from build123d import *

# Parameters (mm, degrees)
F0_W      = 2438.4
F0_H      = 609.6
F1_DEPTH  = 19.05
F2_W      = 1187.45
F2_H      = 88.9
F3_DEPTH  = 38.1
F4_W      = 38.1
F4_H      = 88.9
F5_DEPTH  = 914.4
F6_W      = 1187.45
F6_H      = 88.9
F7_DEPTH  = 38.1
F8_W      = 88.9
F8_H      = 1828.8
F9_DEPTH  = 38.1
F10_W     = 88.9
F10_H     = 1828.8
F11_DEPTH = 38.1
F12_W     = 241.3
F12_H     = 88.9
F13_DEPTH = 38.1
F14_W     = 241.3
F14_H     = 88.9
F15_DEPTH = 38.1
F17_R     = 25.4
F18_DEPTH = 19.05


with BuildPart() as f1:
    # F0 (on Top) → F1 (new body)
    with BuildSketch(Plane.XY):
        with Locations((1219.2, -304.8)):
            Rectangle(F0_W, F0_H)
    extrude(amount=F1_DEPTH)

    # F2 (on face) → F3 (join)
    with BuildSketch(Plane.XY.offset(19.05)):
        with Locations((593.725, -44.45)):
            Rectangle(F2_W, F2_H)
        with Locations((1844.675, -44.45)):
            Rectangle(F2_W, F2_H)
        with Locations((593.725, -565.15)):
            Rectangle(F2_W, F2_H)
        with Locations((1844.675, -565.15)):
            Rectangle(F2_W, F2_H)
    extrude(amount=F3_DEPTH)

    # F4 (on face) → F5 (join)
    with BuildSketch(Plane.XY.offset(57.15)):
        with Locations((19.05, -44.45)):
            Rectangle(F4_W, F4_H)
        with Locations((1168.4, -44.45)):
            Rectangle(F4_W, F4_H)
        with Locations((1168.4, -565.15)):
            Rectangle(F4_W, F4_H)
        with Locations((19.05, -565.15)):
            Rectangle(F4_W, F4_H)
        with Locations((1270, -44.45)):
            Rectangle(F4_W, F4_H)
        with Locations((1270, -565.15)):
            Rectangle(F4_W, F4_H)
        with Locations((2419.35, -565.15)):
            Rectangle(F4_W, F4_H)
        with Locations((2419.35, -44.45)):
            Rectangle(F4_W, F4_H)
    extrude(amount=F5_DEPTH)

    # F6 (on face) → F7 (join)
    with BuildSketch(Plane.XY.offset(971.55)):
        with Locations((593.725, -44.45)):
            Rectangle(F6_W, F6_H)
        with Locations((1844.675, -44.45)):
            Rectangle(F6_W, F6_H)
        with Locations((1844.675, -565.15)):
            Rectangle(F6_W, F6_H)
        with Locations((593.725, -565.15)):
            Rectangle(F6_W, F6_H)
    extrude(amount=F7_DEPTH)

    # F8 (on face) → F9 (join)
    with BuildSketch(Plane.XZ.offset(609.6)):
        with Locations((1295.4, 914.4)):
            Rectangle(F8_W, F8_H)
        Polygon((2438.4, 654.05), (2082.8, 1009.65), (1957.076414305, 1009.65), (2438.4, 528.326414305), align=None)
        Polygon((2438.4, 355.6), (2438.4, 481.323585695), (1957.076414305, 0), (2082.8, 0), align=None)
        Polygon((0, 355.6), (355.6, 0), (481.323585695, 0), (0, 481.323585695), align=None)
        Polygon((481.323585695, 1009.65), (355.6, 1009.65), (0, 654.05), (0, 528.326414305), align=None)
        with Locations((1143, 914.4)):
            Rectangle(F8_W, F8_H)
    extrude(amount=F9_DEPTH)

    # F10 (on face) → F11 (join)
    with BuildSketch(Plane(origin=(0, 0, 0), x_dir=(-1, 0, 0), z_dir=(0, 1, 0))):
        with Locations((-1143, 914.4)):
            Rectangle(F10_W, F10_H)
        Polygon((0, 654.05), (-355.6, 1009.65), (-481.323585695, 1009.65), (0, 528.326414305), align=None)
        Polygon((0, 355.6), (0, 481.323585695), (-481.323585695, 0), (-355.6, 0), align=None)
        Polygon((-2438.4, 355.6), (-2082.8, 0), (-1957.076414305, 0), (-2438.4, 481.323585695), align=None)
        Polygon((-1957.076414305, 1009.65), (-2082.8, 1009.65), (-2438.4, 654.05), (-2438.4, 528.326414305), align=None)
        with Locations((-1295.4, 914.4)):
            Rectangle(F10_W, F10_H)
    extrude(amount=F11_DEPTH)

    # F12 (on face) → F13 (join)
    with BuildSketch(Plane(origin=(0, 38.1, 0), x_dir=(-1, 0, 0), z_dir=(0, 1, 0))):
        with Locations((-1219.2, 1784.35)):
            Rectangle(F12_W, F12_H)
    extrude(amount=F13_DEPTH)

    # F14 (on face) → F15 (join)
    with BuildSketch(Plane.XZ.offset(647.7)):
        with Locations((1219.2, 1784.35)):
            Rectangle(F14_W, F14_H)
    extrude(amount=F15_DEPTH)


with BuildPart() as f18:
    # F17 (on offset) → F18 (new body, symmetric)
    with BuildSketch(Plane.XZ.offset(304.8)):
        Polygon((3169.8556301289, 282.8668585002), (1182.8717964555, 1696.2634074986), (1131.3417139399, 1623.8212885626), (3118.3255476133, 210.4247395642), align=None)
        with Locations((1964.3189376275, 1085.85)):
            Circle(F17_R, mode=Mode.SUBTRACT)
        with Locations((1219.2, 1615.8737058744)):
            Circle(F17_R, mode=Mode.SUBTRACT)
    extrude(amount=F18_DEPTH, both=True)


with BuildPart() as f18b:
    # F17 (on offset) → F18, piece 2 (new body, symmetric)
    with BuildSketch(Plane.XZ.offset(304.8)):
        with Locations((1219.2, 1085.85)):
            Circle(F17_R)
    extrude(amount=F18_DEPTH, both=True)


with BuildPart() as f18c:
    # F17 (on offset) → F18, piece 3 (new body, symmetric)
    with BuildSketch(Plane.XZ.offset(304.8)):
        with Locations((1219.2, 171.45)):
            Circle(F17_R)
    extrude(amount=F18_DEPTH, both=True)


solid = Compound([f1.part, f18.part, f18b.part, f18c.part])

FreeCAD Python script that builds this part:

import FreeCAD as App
import Part
import Sketcher

V = App.Vector
Q = App.Units.Quantity

doc = App.newDocument("Part")
body = doc.addObject("PartDesign::Body", "Body")

# Sketch on XY plane
sketch1 = body.newObject("Sketcher::SketchObject", "Sketch")
sketch1.AttachmentSupport = (doc.getObject("XY_Plane"), [""])
sketch1.MapMode = "FlatFace"
sketch1.addGeometry([
    Part.LineSegment(V(0, 0, 0), V(0, -609.6, 0)),
    Part.LineSegment(V(0, -609.6, 0), V(2438.4, -609.6, 0)),
    Part.LineSegment(V(2438.4, -609.6, 0), V(2438.4, 0, 0)),
    Part.LineSegment(V(2438.4, 0, 0), V(0, 0, 0)),
], False)
sketch1.addConstraint([
    Sketcher.Constraint("Coincident", 0, 2, 1, 1),
    Sketcher.Constraint("Coincident", 1, 2, 2, 1),
    Sketcher.Constraint("Coincident", 2, 2, 3, 1),
    Sketcher.Constraint("Coincident", 3, 2, 0, 1),
    Sketcher.Constraint("Vertical", 0),
    Sketcher.Constraint("Horizontal", 1),
    Sketcher.Constraint("Vertical", 2),
    Sketcher.Constraint("Horizontal", 3),
    Sketcher.Constraint("Coincident", 3, 2, -1, 1),
    Sketcher.Constraint("DistanceX", 1, 1, 1, 2, Q("96 in")),
    Sketcher.Constraint("DistanceY", 0, 2, 0, 1, Q("24 in")),
])
pad1 = body.newObject("PartDesign::Pad", "Pad")
pad1.Profile = sketch1
pad1.Length = Q("0.75 in")

# Sketch on XY plane
sketch2 = body.newObject("Sketcher::SketchObject", "Sketch001")
sketch2.AttachmentSupport = (doc.getObject("XY_Plane"), [""])
sketch2.MapMode = "FlatFace"
sketch2.AttachmentOffset = App.Placement(V(0, 0, 0.75 * 25.4), App.Rotation())
sketch2.addGeometry([
    Part.LineSegment(V(0, 0, 0), V(0, -88.9, 0)),  # 0
    Part.LineSegment(V(0, -88.9, 0), V(1187.45, -88.9, 0)),  # 1
    Part.LineSegment(V(1187.45, -88.9, 0), V(1187.45, 0, 0)),  # 2
    Part.LineSegment(V(1187.45, 0, 0), V(0, 0, 0)),  # 3
    Part.LineSegment(V(1250.95, 0, 0), V(1250.95, -88.9, 0)),  # 4
    Part.LineSegment(V(1250.95, -88.9, 0), V(2438.4, -88.9, 0)),  # 5
    Part.LineSegment(V(2438.4, -88.9, 0), V(2438.4, 0, 0)),  # 6
    Part.LineSegment(V(2438.4, 0, 0), V(1250.95, 0, 0)),  # 7
    Part.LineSegment(V(0, -520.7, 0), V(0, -609.6, 0)),  # 8
    Part.LineSegment(V(0, -609.6, 0), V(1187.45, -609.6, 0)),  # 9
    Part.LineSegment(V(1187.45, -609.6, 0), V(1187.45, -520.7, 0)),  # 10
    Part.LineSegment(V(1187.45, -520.7, 0), V(0, -520.7, 0)),  # 11
    Part.LineSegment(V(1250.95, -520.7, 0), V(1250.95, -609.6, 0)),  # 12
    Part.LineSegment(V(1250.95, -609.6, 0), V(2438.4, -609.6, 0)),  # 13
    Part.LineSegment(V(2438.4, -609.6, 0), V(2438.4, -520.7, 0)),  # 14
    Part.LineSegment(V(2438.4, -520.7, 0), V(1250.95, -520.7, 0)),  # 15
], False)
sketch2.addConstraint([
    Sketcher.Constraint("Coincident", 0, 2, 1, 1),
    Sketcher.Constraint("Coincident", 1, 2, 2, 1),
    Sketcher.Constraint("Coincident", 2, 2, 3, 1),
    Sketcher.Constraint("Coincident", 3, 2, 0, 1),
    Sketcher.Constraint("Coincident", 4, 2, 5, 1),
    Sketcher.Constraint("Coincident", 5, 2, 6, 1),
    Sketcher.Constraint("Coincident", 6, 2, 7, 1),
    Sketcher.Constraint("Coincident", 7, 2, 4, 1),
    Sketcher.Constraint("Coincident", 8, 2, 9, 1),
    Sketcher.Constraint("Coincident", 9, 2, 10, 1),
    Sketcher.Constraint("Coincident", 10, 2, 11, 1),
    Sketcher.Constraint("Coincident", 11, 2, 8, 1),
    Sketcher.Constraint("Coincident", 12, 2, 13, 1),
    Sketcher.Constraint("Coincident", 13, 2, 14, 1),
    Sketcher.Constraint("Coincident", 14, 2, 15, 1),
    Sketcher.Constraint("Coincident", 15, 2, 12, 1),
    Sketcher.Constraint("Vertical", 0),
    Sketcher.Constraint("Horizontal", 1),
    Sketcher.Constraint("Vertical", 2),
    Sketcher.Constraint("Horizontal", 3),
    Sketcher.Constraint("Vertical", 4),
    Sketcher.Constraint("Horizontal", 5),
    Sketcher.Constraint("Vertical", 6),
    Sketcher.Constraint("Horizontal", 7),
    Sketcher.Constraint("Vertical", 8),
    Sketcher.Constraint("Horizontal", 9),
    Sketcher.Constraint("Vertical", 10),
    Sketcher.Constraint("Horizontal", 11),
    Sketcher.Constraint("Vertical", 12),
    Sketcher.Constraint("Horizontal", 13),
    Sketcher.Constraint("Vertical", 14),
    Sketcher.Constraint("Horizontal", 15),
    Sketcher.Constraint("Coincident", 3, 2, -1, 1),
    Sketcher.Constraint("PointOnObject", 6, 2, -1),
    Sketcher.Constraint("PointOnObject", 8, 2, -2),
    Sketcher.Constraint("Horizontal", 1, 2, 4, 2),
    Sketcher.Constraint("Horizontal", 9, 2, 12, 2),
    Sketcher.Constraint("Horizontal", 11, 2, 14, 2),
    Sketcher.Constraint("Vertical", 2, 2, 9, 2),
    Sketcher.Constraint("Vertical", 7, 2, 12, 2),
    Sketcher.Constraint("Vertical", 6, 2, 13, 2),
    Sketcher.Constraint("Equal", 3, 5),
    Sketcher.Constraint("Equal", 6, 8),
    Sketcher.Constraint("DistanceY", 0, 2, 0, 1, Q("3.5 in")),
    Sketcher.Constraint("DistanceX", -1, 1, 5, 2, Q("96 in")),
    Sketcher.Constraint("DistanceY", 8, 2, -1, 1, Q("24 in")),
    Sketcher.Constraint("DistanceX", 1, 1, 1, 2, Q("46.75 in")),
])
pad2 = body.newObject("PartDesign::Pad", "Pad001")
pad2.Profile = sketch2
pad2.Length = Q("1.5 in")

# Sketch on XY plane
sketch3 = body.newObject("Sketcher::SketchObject", "Sketch002")
sketch3.AttachmentSupport = (doc.getObject("XY_Plane"), [""])
sketch3.MapMode = "FlatFace"
sketch3.AttachmentOffset = App.Placement(V(0, 0, 2.25 * 25.4), App.Rotation())
sketch3.addGeometry([
    Part.LineSegment(V(0, 0, 0), V(0, -88.9, 0)),  # 0
    Part.LineSegment(V(0, -88.9, 0), V(38.1, -88.9, 0)),  # 1
    Part.LineSegment(V(38.1, -88.9, 0), V(38.1, 0, 0)),  # 2
    Part.LineSegment(V(38.1, 0, 0), V(0, 0, 0)),  # 3
    Part.LineSegment(V(1149.35, 0, 0), V(1149.35, -88.9, 0)),  # 4
    Part.LineSegment(V(1149.35, -88.9, 0), V(1187.45, -88.9, 0)),  # 5
    Part.LineSegment(V(1187.45, -88.9, 0), V(1187.45, 0, 0)),  # 6
    Part.LineSegment(V(1187.45, 0, 0), V(1149.35, 0, 0)),  # 7
    Part.LineSegment(V(1149.35, -520.7, 0), V(1149.35, -609.6, 0)),  # 8
    Part.LineSegment(V(1149.35, -609.6, 0), V(1187.45, -609.6, 0)),  # 9
    Part.LineSegment(V(1187.45, -609.6, 0), V(1187.45, -520.7, 0)),  # 10
    Part.LineSegment(V(1187.45, -520.7, 0), V(1149.35, -520.7, 0)),  # 11
    Part.LineSegment(V(0, -520.7, 0), V(0, -609.6, 0)),  # 12
    Part.LineSegment(V(0, -609.6, 0), V(38.1, -609.6, 0)),  # 13
    Part.LineSegment(V(38.1, -609.6, 0), V(38.1, -520.7, 0)),  # 14
    Part.LineSegment(V(38.1, -520.7, 0), V(0, -520.7, 0)),  # 15
    Part.LineSegment(V(1250.95, 0, 0), V(1250.95, -88.9, 0)),  # 16
    Part.LineSegment(V(1250.95, -88.9, 0), V(1289.05, -88.9, 0)),  # 17
    Part.LineSegment(V(1289.05, -88.9, 0), V(1289.05, 0, 0)),  # 18
    Part.LineSegment(V(1289.05, 0, 0), V(1250.95, 0, 0)),  # 19
    Part.LineSegment(V(1250.95, -520.7, 0), V(1250.95, -609.6, 0)),  # 20
    Part.LineSegment(V(1250.95, -609.6, 0), V(1289.05, -609.6, 0)),  # 21
    Part.LineSegment(V(1289.05, -609.6, 0), V(1289.05, -520.7, 0)),  # 22
    Part.LineSegment(V(1289.05, -520.7, 0), V(1250.95, -520.7, 0)),  # 23
    Part.LineSegment(V(2400.3, -520.7, 0), V(2400.3, -609.6, 0)),  # 24
    Part.LineSegment(V(2400.3, -609.6, 0), V(2438.4, -609.6, 0)),  # 25
    Part.LineSegment(V(2438.4, -609.6, 0), V(2438.4, -520.7, 0)),  # 26
    Part.LineSegment(V(2438.4, -520.7, 0), V(2400.3, -520.7, 0)),  # 27
    Part.LineSegment(V(2400.3, 0, 0), V(2400.3, -88.9, 0)),  # 28
    Part.LineSegment(V(2400.3, -88.9, 0), V(2438.4, -88.9, 0)),  # 29
    Part.LineSegment(V(2438.4, -88.9, 0), V(2438.4, 0, 0)),  # 30
    Part.LineSegment(V(2438.4, 0, 0), V(2400.3, 0, 0)),  # 31
], False)
sketch3.addConstraint([
    Sketcher.Constraint("Coincident", 0, 2, 1, 1),
    Sketcher.Constraint("Coincident", 1, 2, 2, 1),
    Sketcher.Constraint("Coincident", 2, 2, 3, 1),
    Sketcher.Constraint("Coincident", 3, 2, 0, 1),
    Sketcher.Constraint("Coincident", 4, 2, 5, 1),
    Sketcher.Constraint("Coincident", 5, 2, 6, 1),
    Sketcher.Constraint("Coincident", 6, 2, 7, 1),
    Sketcher.Constraint("Coincident", 7, 2, 4, 1),
    Sketcher.Constraint("Coincident", 8, 2, 9, 1),
    Sketcher.Constraint("Coincident", 9, 2, 10, 1),
    Sketcher.Constraint("Coincident", 10, 2, 11, 1),
    Sketcher.Constraint("Coincident", 11, 2, 8, 1),
    Sketcher.Constraint("Coincident", 12, 2, 13, 1),
    Sketcher.Constraint("Coincident", 13, 2, 14, 1),
    Sketcher.Constraint("Coincident", 14, 2, 15, 1),
    Sketcher.Constraint("Coincident", 15, 2, 12, 1),
    Sketcher.Constraint("Coincident", 16, 2, 17, 1),
    Sketcher.Constraint("Coincident", 17, 2, 18, 1),
    Sketcher.Constraint("Coincident", 18, 2, 19, 1),
    Sketcher.Constraint("Coincident", 19, 2, 16, 1),
    Sketcher.Constraint("Coincident", 20, 2, 21, 1),
    Sketcher.Constraint("Coincident", 21, 2, 22, 1),
    Sketcher.Constraint("Coincident", 22, 2, 23, 1),
    Sketcher.Constraint("Coincident", 23, 2, 20, 1),
    Sketcher.Constraint("Coincident", 24, 2, 25, 1),
    Sketcher.Constraint("Coincident", 25, 2, 26, 1),
    Sketcher.Constraint("Coincident", 26, 2, 27, 1),
    Sketcher.Constraint("Coincident", 27, 2, 24, 1),
    Sketcher.Constraint("Coincident", 28, 2, 29, 1),
    Sketcher.Constraint("Coincident", 29, 2, 30, 1),
    Sketcher.Constraint("Coincident", 30, 2, 31, 1),
    Sketcher.Constraint("Coincident", 31, 2, 28, 1),
    Sketcher.Constraint("Vertical", 0),
    Sketcher.Constraint("Horizontal", 1),
    Sketcher.Constraint("Vertical", 2),
    Sketcher.Constraint("Horizontal", 3),
    Sketcher.Constraint("Vertical", 4),
    Sketcher.Constraint("Horizontal", 5),
    Sketcher.Constraint("Vertical", 6),
    Sketcher.Constraint("Horizontal", 7),
    Sketcher.Constraint("Vertical", 8),
    Sketcher.Constraint("Horizontal", 9),
    Sketcher.Constraint("Vertical", 10),
    Sketcher.Constraint("Horizontal", 11),
    Sketcher.Constraint("Vertical", 12),
    Sketcher.Constraint("Horizontal", 13),
    Sketcher.Constraint("Vertical", 14),
    Sketcher.Constraint("Horizontal", 15),
    Sketcher.Constraint("Vertical", 16),
    Sketcher.Constraint("Horizontal", 17),
    Sketcher.Constraint("Vertical", 18),
    Sketcher.Constraint("Horizontal", 19),
    Sketcher.Constraint("Vertical", 20),
    Sketcher.Constraint("Horizontal", 21),
    Sketcher.Constraint("Vertical", 22),
    Sketcher.Constraint("Horizontal", 23),
    Sketcher.Constraint("Vertical", 24),
    Sketcher.Constraint("Horizontal", 25),
    Sketcher.Constraint("Vertical", 26),
    Sketcher.Constraint("Horizontal", 27),
    Sketcher.Constraint("Vertical", 28),
    Sketcher.Constraint("Horizontal", 29),
    Sketcher.Constraint("Vertical", 30),
    Sketcher.Constraint("Horizontal", 31),
    Sketcher.Constraint("Coincident", 3, 2, -1, 1),
    Sketcher.Constraint("PointOnObject", 6, 2, -1),
    Sketcher.Constraint("PointOnObject", 12, 2, -2),
    Sketcher.Constraint("PointOnObject", 18, 2, -1),
    Sketcher.Constraint("PointOnObject", 30, 2, -1),
    Sketcher.Constraint("Horizontal", 1, 2, 4, 2),
    Sketcher.Constraint("Horizontal", 9, 2, 12, 2),
    Sketcher.Constraint("Horizontal", 11, 2, 14, 2),
    Sketcher.Constraint("Horizontal", 5, 2, 16, 2),
    Sketcher.Constraint("Horizontal", 13, 2, 20, 2),
    Sketcher.Constraint("Horizontal", 15, 2, 22, 2),
    Sketcher.Constraint("Horizontal", 21, 2, 24, 2),
    Sketcher.Constraint("Horizontal", 23, 2, 26, 2),
    Sketcher.Constraint("Horizontal", 17, 2, 28, 2),
    Sketcher.Constraint("Vertical", 7, 2, 8, 2),
    Sketcher.Constraint("Vertical", 6, 2, 9, 2),
    Sketcher.Constraint("Vertical", 2, 2, 13, 2),
    Sketcher.Constraint("Vertical", 19, 2, 20, 2),
    Sketcher.Constraint("Vertical", 18, 2, 21, 2),
    Sketcher.Constraint("Vertical", 27, 2, 28, 2),
    Sketcher.Constraint("Vertical", 26, 2, 29, 2),
    Sketcher.Constraint("Equal", 3, 5),
    Sketcher.Constraint("Equal", 15, 17),
    Sketcher.Constraint("Equal", 23, 25),
    Sketcher.Constraint("Equal", 6, 8),
    Sketcher.Constraint("DistanceX", 1, 1, 1, 2, Q("1.5 in")),
    Sketcher.Constraint("DistanceY", 0, 2, 0, 1, Q("3.5 in")),
    Sketcher.Constraint("DistanceY", 8, 2, -1, 1, Q("24 in")),
    Sketcher.Constraint("DistanceX", -1, 1, 25, 2, Q("96 in")),
    Sketcher.Constraint("DistanceX", 4, 2, 16, 2, Q("4 in")),
    Sketcher.Constraint("DistanceX", -1, 1, 4, 2, Q("45.25 in")),
])
pad3 = body.newObject("PartDesign::Pad", "Pad002")
pad3.Profile = sketch3
pad3.Length = Q("36 in")

# Sketch on XY plane
sketch4 = body.newObject("Sketcher::SketchObject", "Sketch003")
sketch4.AttachmentSupport = (doc.getObject("XY_Plane"), [""])
sketch4.MapMode = "FlatFace"
sketch4.AttachmentOffset = App.Placement(V(0, 0, 38.25 * 25.4), App.Rotation())
sketch4.addGeometry([
    Part.LineSegment(V(0, 0, 0), V(0, -88.9, 0)),  # 0
    Part.LineSegment(V(0, -88.9, 0), V(1187.45, -88.9, 0)),  # 1
    Part.LineSegment(V(1187.45, -88.9, 0), V(1187.45, 0, 0)),  # 2
    Part.LineSegment(V(1187.45, 0, 0), V(0, 0, 0)),  # 3
    Part.LineSegment(V(1250.95, 0, 0), V(1250.95, -88.9, 0)),  # 4
    Part.LineSegment(V(1250.95, -88.9, 0), V(2438.4, -88.9, 0)),  # 5
    Part.LineSegment(V(2438.4, -88.9, 0), V(2438.4, 0, 0)),  # 6
    Part.LineSegment(V(2438.4, 0, 0), V(1250.95, 0, 0)),  # 7
    Part.LineSegment(V(1250.95, -520.7, 0), V(1250.95, -609.6, 0)),  # 8
    Part.LineSegment(V(1250.95, -609.6, 0), V(2438.4, -609.6, 0)),  # 9
    Part.LineSegment(V(2438.4, -609.6, 0), V(2438.4, -520.7, 0)),  # 10
    Part.LineSegment(V(2438.4, -520.7, 0), V(1250.95, -520.7, 0)),  # 11
    Part.LineSegment(V(0, -520.7, 0), V(0, -609.6, 0)),  # 12
    Part.LineSegment(V(0, -609.6, 0), V(1187.45, -609.6, 0)),  # 13
    Part.LineSegment(V(1187.45, -609.6, 0), V(1187.45, -520.7, 0)),  # 14
    Part.LineSegment(V(1187.45, -520.7, 0), V(0, -520.7, 0)),  # 15
], False)
sketch4.addConstraint([
    Sketcher.Constraint("Coincident", 0, 2, 1, 1),
    Sketcher.Constraint("Coincident", 1, 2, 2, 1),
    Sketcher.Constraint("Coincident", 2, 2, 3, 1),
    Sketcher.Constraint("Coincident", 3, 2, 0, 1),
    Sketcher.Constraint("Coincident", 4, 2, 5, 1),
    Sketcher.Constraint("Coincident", 5, 2, 6, 1),
    Sketcher.Constraint("Coincident", 6, 2, 7, 1),
    Sketcher.Constraint("Coincident", 7, 2, 4, 1),
    Sketcher.Constraint("Coincident", 8, 2, 9, 1),
    Sketcher.Constraint("Coincident", 9, 2, 10, 1),
    Sketcher.Constraint("Coincident", 10, 2, 11, 1),
    Sketcher.Constraint("Coincident", 11, 2, 8, 1),
    Sketcher.Constraint("Coincident", 12, 2, 13, 1),
    Sketcher.Constraint("Coincident", 13, 2, 14, 1),
    Sketcher.Constraint("Coincident", 14, 2, 15, 1),
    Sketcher.Constraint("Coincident", 15, 2, 12, 1),
    Sketcher.Constraint("Vertical", 0),
    Sketcher.Constraint("Horizontal", 1),
    Sketcher.Constraint("Vertical", 2),
    Sketcher.Constraint("Horizontal", 3),
    Sketcher.Constraint("Vertical", 4),
    Sketcher.Constraint("Horizontal", 5),
    Sketcher.Constraint("Vertical", 6),
    Sketcher.Constraint("Horizontal", 7),
    Sketcher.Constraint("Vertical", 8),
    Sketcher.Constraint("Horizontal", 9),
    Sketcher.Constraint("Vertical", 10),
    Sketcher.Constraint("Horizontal", 11),
    Sketcher.Constraint("Vertical", 12),
    Sketcher.Constraint("Horizontal", 13),
    Sketcher.Constraint("Vertical", 14),
    Sketcher.Constraint("Horizontal", 15),
    Sketcher.Constraint("Coincident", 3, 2, -1, 1),
    Sketcher.Constraint("PointOnObject", 6, 2, -1),
    Sketcher.Constraint("PointOnObject", 12, 2, -2),
    Sketcher.Constraint("Horizontal", 1, 2, 4, 2),
    Sketcher.Constraint("Horizontal", 9, 2, 12, 2),
    Sketcher.Constraint("Horizontal", 11, 2, 14, 2),
    Sketcher.Constraint("Vertical", 7, 2, 8, 2),
    Sketcher.Constraint("Vertical", 6, 2, 9, 2),
    Sketcher.Constraint("Vertical", 2, 2, 13, 2),
    Sketcher.Constraint("Equal", 3, 5),
    Sketcher.Constraint("Equal", 6, 8),
    Sketcher.Constraint("DistanceY", 0, 2, 0, 1, Q("3.5 in")),
    Sketcher.Constraint("DistanceX", -1, 1, 5, 2, Q("96 in")),
    Sketcher.Constraint("DistanceY", 8, 2, -1, 1, Q("24 in")),
    Sketcher.Constraint("DistanceX", 1, 1, 1, 2, Q("46.75 in")),
])
pad4 = body.newObject("PartDesign::Pad", "Pad003")
pad4.Profile = sketch4
pad4.Length = Q("1.5 in")

# Sketch on XZ plane
sketch5 = body.newObject("Sketcher::SketchObject", "Sketch004")
sketch5.AttachmentSupport = (doc.getObject("XZ_Plane"), [""])
sketch5.MapMode = "FlatFace"
sketch5.AttachmentOffset = App.Placement(V(0, 0, 24 * 25.4), App.Rotation())
sketch5.addGeometry([
    Part.LineSegment(V(1250.95, 1828.8, 0), V(1250.95, 0, 0)),  # 0
    Part.LineSegment(V(1250.95, 0, 0), V(1339.85, 0, 0)),  # 1
    Part.LineSegment(V(1339.85, 0, 0), V(1339.85, 1828.8, 0)),  # 2
    Part.LineSegment(V(1339.85, 1828.8, 0), V(1250.95, 1828.8, 0)),  # 3
    Part.LineSegment(V(2438.4, 654.05, 0), V(2082.8, 1009.65, 0)),  # 4
    Part.LineSegment(V(2082.8, 1009.65, 0), V(1957.076414, 1009.65, 0)),  # 5
    Part.LineSegment(V(1957.076414, 1009.65, 0), V(2438.4, 528.326414, 0)),  # 6
    Part.LineSegment(V(2438.4, 528.326414, 0), V(2438.4, 654.05, 0)),  # 7
    Part.LineSegment(V(2438.4, 355.6, 0), V(2438.4, 481.323586, 0)),  # 8
    Part.LineSegment(V(2438.4, 481.323586, 0), V(1957.076414, 0, 0)),  # 9
    Part.LineSegment(V(1957.076414, 0, 0), V(2082.8, 0, 0)),  # 10
    Part.LineSegment(V(2082.8, 0, 0), V(2438.4, 355.6, 0)),  # 11
    Part.LineSegment(V(0, 355.6, 0), V(355.6, 0, 0)),  # 12
    Part.LineSegment(V(355.6, 0, 0), V(481.323586, 0, 0)),  # 13
    Part.LineSegment(V(481.323586, 0, 0), V(0, 481.323586, 0)),  # 14
    Part.LineSegment(V(0, 481.323586, 0), V(0, 355.6, 0)),  # 15
    Part.LineSegment(V(481.323586, 1009.65, 0), V(355.6, 1009.65, 0)),  # 16
    Part.LineSegment(V(355.6, 1009.65, 0), V(0, 654.05, 0)),  # 17
    Part.LineSegment(V(0, 654.05, 0), V(0, 528.326414, 0)),  # 18
    Part.LineSegment(V(0, 528.326414, 0), V(481.323586, 1009.65, 0)),  # 19
    Part.LineSegment(V(1098.55, 1828.8, 0), V(1098.55, 0, 0)),  # 20
    Part.LineSegment(V(1098.55, 0, 0), V(1187.45, 0, 0)),  # 21
    Part.LineSegment(V(1187.45, 0, 0), V(1187.45, 1828.8, 0)),  # 22
    Part.LineSegment(V(1187.45, 1828.8, 0), V(1098.55, 1828.8, 0)),  # 23
], False)
sketch5.addConstraint([
    Sketcher.Constraint("Coincident", 0, 2, 1, 1),
    Sketcher.Constraint("Coincident", 1, 2, 2, 1),
    Sketcher.Constraint("Coincident", 2, 2, 3, 1),
    Sketcher.Constraint("Coincident", 3, 2, 0, 1),
    Sketcher.Constraint("Coincident", 4, 2, 5, 1),
    Sketcher.Constraint("Coincident", 5, 2, 6, 1),
    Sketcher.Constraint("Coincident", 6, 2, 7, 1),
    Sketcher.Constraint("Coincident", 7, 2, 4, 1),
    Sketcher.Constraint("Coincident", 8, 2, 9, 1),
    Sketcher.Constraint("Coincident", 9, 2, 10, 1),
    Sketcher.Constraint("Coincident", 10, 2, 11, 1),
    Sketcher.Constraint("Coincident", 11, 2, 8, 1),
    Sketcher.Constraint("Coincident", 12, 2, 13, 1),
    Sketcher.Constraint("Coincident", 13, 2, 14, 1),
    Sketcher.Constraint("Coincident", 14, 2, 15, 1),
    Sketcher.Constraint("Coincident", 15, 2, 12, 1),
    Sketcher.Constraint("Coincident", 16, 2, 17, 1),
    Sketcher.Constraint("Coincident", 17, 2, 18, 1),
    Sketcher.Constraint("Coincident", 18, 2, 19, 1),
    Sketcher.Constraint("Coincident", 19, 2, 16, 1),
    Sketcher.Constraint("Coincident", 20, 2, 21, 1),
    Sketcher.Constraint("Coincident", 21, 2, 22, 1),
    Sketcher.Constraint("Coincident", 22, 2, 23, 1),
    Sketcher.Constraint("Coincident", 23, 2, 20, 1),
    Sketcher.Constraint("Vertical", 0),
    Sketcher.Constraint("Horizontal", 1),
    Sketcher.Constraint("Vertical", 2),
    Sketcher.Constraint("Horizontal", 3),
    Sketcher.Constraint("Horizontal", 5),
    Sketcher.Constraint("Vertical", 7),
    Sketcher.Constraint("Vertical", 8),
    Sketcher.Constraint("Horizontal", 10),
    Sketcher.Constraint("Horizontal", 13),
    Sketcher.Constraint("Vertical", 15),
    Sketcher.Constraint("Horizontal", 16),
    Sketcher.Constraint("Vertical", 18),
    Sketcher.Constraint("Vertical", 20),
    Sketcher.Constraint("Horizontal", 21),
    Sketcher.Constraint("Vertical", 22),
    Sketcher.Constraint("Horizontal", 23),
    Sketcher.Constraint("PointOnObject", 0, 2, -1),
    Sketcher.Constraint("PointOnObject", 9, 2, -1),
    Sketcher.Constraint("PointOnObject", 12, 2, -1),
    Sketcher.Constraint("PointOnObject", 14, 2, -2),
    Sketcher.Constraint("PointOnObject", 17, 2, -2),
    Sketcher.Constraint("PointOnObject", 20, 2, -1),
    Sketcher.Constraint("Parallel", 4, 6),
    Sketcher.Constraint("Perpendicular", 6, 9),
    Sketcher.Constraint("Parallel", 9, 11),
    Sketcher.Constraint("Perpendicular", 11, 12),
    Sketcher.Constraint("Parallel", 12, 14),
    Sketcher.Constraint("Perpendicular", 14, 17),
    Sketcher.Constraint("Parallel", 17, 19),
    Sketcher.Constraint("Horizontal", 8, 2, 14, 2),
    Sketcher.Constraint("Horizontal", 11, 2, 15, 2),
    Sketcher.Constraint("Horizontal", 5, 2, 16, 2),
    Sketcher.Constraint("Horizontal", 7, 2, 17, 2),
    Sketcher.Constraint("Horizontal", 6, 2, 18, 2),
    Sketcher.Constraint("Horizontal", 3, 2, 22, 2),
    Sketcher.Constraint("Vertical", 7, 2, 8, 2),
    Sketcher.Constraint("Vertical", 5, 2, 9, 2),
    Sketcher.Constraint("Vertical", 4, 2, 10, 2),
    Sketcher.Constraint("Vertical", 12, 2, 16, 2),
    Sketcher.Constraint("Equal", 3, 21),
    Sketcher.Constraint("DistanceY", 0, 2, 0, 1, Q("72 in")),
    Sketcher.Constraint("DistanceX", 1, 1, 1, 2, Q("3.5 in")),
    Sketcher.Constraint("DistanceX", -1, 1, 4, 2, Q("82 in")),
    Sketcher.Constraint("DistanceX", -1, 1, 6, 2, Q("96 in")),
    Sketcher.Constraint("DistanceX", 20, 2, 0, 2, Q("6 in")),
    Sketcher.Constraint("DistanceX", -1, 1, 0, 2, Q("49.25 in")),
    Sketcher.Constraint("DistanceY", -1, 1, 4, 2, Q("39.75 in")),
    Sketcher.Constraint("DistanceX", 5, 2, 5, 1, 125.723586),
])
pad5 = body.newObject("PartDesign::Pad", "Pad004")
pad5.Profile = sketch5
pad5.Length = Q("1.5 in")

# Sketch on XZ plane
sketch6 = body.newObject("Sketcher::SketchObject", "Sketch005")
sketch6.AttachmentSupport = (doc.getObject("XZ_Plane"), [""])
sketch6.MapMode = "FlatFace"
sketch6.addGeometry([
    Part.LineSegment(V(1187.45, 1828.8, 0), V(1187.45, 0, 0)),  # 0
    Part.LineSegment(V(1187.45, 0, 0), V(1098.55, 0, 0)),  # 1
    Part.LineSegment(V(1098.55, 0, 0), V(1098.55, 1828.8, 0)),  # 2
    Part.LineSegment(V(1098.55, 1828.8, 0), V(1187.45, 1828.8, 0)),  # 3
    Part.LineSegment(V(0, 654.05, 0), V(355.6, 1009.65, 0)),  # 4
    Part.LineSegment(V(355.6, 1009.65, 0), V(481.323586, 1009.65, 0)),  # 5
    Part.LineSegment(V(481.323586, 1009.65, 0), V(0, 528.326414, 0)),  # 6
    Part.LineSegment(V(0, 528.326414, 0), V(0, 654.05, 0)),  # 7
    Part.LineSegment(V(0, 355.6, 0), V(0, 481.323586, 0)),  # 8
    Part.LineSegment(V(0, 481.323586, 0), V(481.323586, 0, 0)),  # 9
    Part.LineSegment(V(481.323586, 0, 0), V(355.6, 0, 0)),  # 10
    Part.LineSegment(V(355.6, 0, 0), V(0, 355.6, 0)),  # 11
    Part.LineSegment(V(2438.4, 355.6, 0), V(2082.8, 0, 0)),  # 12
    Part.LineSegment(V(2082.8, 0, 0), V(1957.076414, 0, 0)),  # 13
    Part.LineSegment(V(1957.076414, 0, 0), V(2438.4, 481.323586, 0)),  # 14
    Part.LineSegment(V(2438.4, 481.323586, 0), V(2438.4, 355.6, 0)),  # 15
    Part.LineSegment(V(1957.076414, 1009.65, 0), V(2082.8, 1009.65, 0)),  # 16
    Part.LineSegment(V(2082.8, 1009.65, 0), V(2438.4, 654.05, 0)),  # 17
    Part.LineSegment(V(2438.4, 654.05, 0), V(2438.4, 528.326414, 0)),  # 18
    Part.LineSegment(V(2438.4, 528.326414, 0), V(1957.076414, 1009.65, 0)),  # 19
    Part.LineSegment(V(1339.85, 1828.8, 0), V(1339.85, 0, 0)),  # 20
    Part.LineSegment(V(1339.85, 0, 0), V(1250.95, 0, 0)),  # 21
    Part.LineSegment(V(1250.95, 0, 0), V(1250.95, 1828.8, 0)),  # 22
    Part.LineSegment(V(1250.95, 1828.8, 0), V(1339.85, 1828.8, 0)),  # 23
], False)
sketch6.addConstraint([
    Sketcher.Constraint("Coincident", 0, 2, 1, 1),
    Sketcher.Constraint("Coincident", 1, 2, 2, 1),
    Sketcher.Constraint("Coincident", 2, 2, 3, 1),
    Sketcher.Constraint("Coincident", 3, 2, 0, 1),
    Sketcher.Constraint("Coincident", 4, 2, 5, 1),
    Sketcher.Constraint("Coincident", 5, 2, 6, 1),
    Sketcher.Constraint("Coincident", 6, 2, 7, 1),
    Sketcher.Constraint("Coincident", 7, 2, 4, 1),
    Sketcher.Constraint("Coincident", 8, 2, 9, 1),
    Sketcher.Constraint("Coincident", 9, 2, 10, 1),
    Sketcher.Constraint("Coincident", 10, 2, 11, 1),
    Sketcher.Constraint("Coincident", 11, 2, 8, 1),
    Sketcher.Constraint("Coincident", 12, 2, 13, 1),
    Sketcher.Constraint("Coincident", 13, 2, 14, 1),
    Sketcher.Constraint("Coincident", 14, 2, 15, 1),
    Sketcher.Constraint("Coincident", 15, 2, 12, 1),
    Sketcher.Constraint("Coincident", 16, 2, 17, 1),
    Sketcher.Constraint("Coincident", 17, 2, 18, 1),
    Sketcher.Constraint("Coincident", 18, 2, 19, 1),
    Sketcher.Constraint("Coincident", 19, 2, 16, 1),
    Sketcher.Constraint("Coincident", 20, 2, 21, 1),
    Sketcher.Constraint("Coincident", 21, 2, 22, 1),
    Sketcher.Constraint("Coincident", 22, 2, 23, 1),
    Sketcher.Constraint("Coincident", 23, 2, 20, 1),
    Sketcher.Constraint("Vertical", 0),
    Sketcher.Constraint("Horizontal", 1),
    Sketcher.Constraint("Vertical", 2),
    Sketcher.Constraint("Horizontal", 3),
    Sketcher.Constraint("Horizontal", 5),
    Sketcher.Constraint("Vertical", 7),
    Sketcher.Constraint("Vertical", 8),
    Sketcher.Constraint("Horizontal", 10),
    Sketcher.Constraint("Horizontal", 13),
    Sketcher.Constraint("Vertical", 15),
    Sketcher.Constraint("Horizontal", 16),
    Sketcher.Constraint("Vertical", 18),
    Sketcher.Constraint("Vertical", 20),
    Sketcher.Constraint("Horizontal", 21),
    Sketcher.Constraint("Vertical", 22),
    Sketcher.Constraint("Horizontal", 23),
    Sketcher.Constraint("PointOnObject", 0, 2, -1),
    Sketcher.Constraint("PointOnObject", 6, 2, -2),
    Sketcher.Constraint("PointOnObject", 8, 2, -2),
    Sketcher.Constraint("PointOnObject", 9, 2, -1),
    Sketcher.Constraint("PointOnObject", 12, 2, -1),
    Sketcher.Constraint("PointOnObject", 20, 2, -1),
    Sketcher.Constraint("Parallel", 4, 6),
    Sketcher.Constraint("Perpendicular", 6, 9),
    Sketcher.Constraint("Parallel", 9, 11),
    Sketcher.Constraint("Perpendicular", 11, 12),
    Sketcher.Constraint("Parallel", 12, 14),
    Sketcher.Constraint("Perpendicular", 14, 17),
    Sketcher.Constraint("Parallel", 17, 19),
    Sketcher.Constraint("Horizontal", 8, 2, 14, 2),
    Sketcher.Constraint("Horizontal", 11, 2, 15, 2),
    Sketcher.Constraint("Horizontal", 5, 2, 16, 2),
    Sketcher.Constraint("Horizontal", 7, 2, 17, 2),
    Sketcher.Constraint("Horizontal", 6, 2, 18, 2),
    Sketcher.Constraint("Horizontal", 3, 2, 22, 2),
    Sketcher.Constraint("Vertical", 5, 2, 9, 2),
    Sketcher.Constraint("Vertical", 4, 2, 10, 2),
    Sketcher.Constraint("Vertical", 12, 2, 16, 2),
    Sketcher.Constraint("Vertical", 15, 2, 17, 2),
    Sketcher.Constraint("Equal", 3, 21),
    Sketcher.Constraint("DistanceY", 0, 2, 0, 1, Q("72 in")),
    Sketcher.Constraint("DistanceX", 1, 2, 1, 1, Q("3.5 in")),
    Sketcher.Constraint("DistanceX", -1, 1, 4, 2, Q("14 in")),
    Sketcher.Constraint("DistanceX", -1, 1, 12, 2, Q("82 in")),
    Sketcher.Constraint("DistanceX", 0, 2, 20, 2, Q("6 in")),
    Sketcher.Constraint("DistanceX", -1, 1, 0, 2, Q("46.75 in")),
    Sketcher.Constraint("DistanceY", -1, 1, 4, 2, Q("39.75 in")),
    Sketcher.Constraint("DistanceX", 5, 1, 5, 2, 125.723586),
])
pad6 = body.newObject("PartDesign::Pad", "Pad005")
pad6.Profile = sketch6
pad6.Length = Q("1.5 in")
pad6.Reversed = True

# Sketch on XZ plane
sketch7 = body.newObject("Sketcher::SketchObject", "Sketch006")
sketch7.AttachmentSupport = (doc.getObject("XZ_Plane"), [""])
sketch7.MapMode = "FlatFace"
sketch7.AttachmentOffset = App.Placement(V(0, 0, -1.5 * 25.4), App.Rotation())
sketch7.addGeometry([
    Part.LineSegment(V(1339.85, 1828.8, 0), V(1339.85, 1739.9, 0)),
    Part.LineSegment(V(1339.85, 1739.9, 0), V(1098.55, 1739.9, 0)),
    Part.LineSegment(V(1098.55, 1739.9, 0), V(1098.55, 1828.8, 0)),
    Part.LineSegment(V(1098.55, 1828.8, 0), V(1339.85, 1828.8, 0)),
], False)
sketch7.addConstraint([
    Sketcher.Constraint("Coincident", 0, 2, 1, 1),
    Sketcher.Constraint("Coincident", 1, 2, 2, 1),
    Sketcher.Constraint("Coincident", 2, 2, 3, 1),
    Sketcher.Constraint("Coincident", 3, 2, 0, 1),
    Sketcher.Constraint("Vertical", 0),
    Sketcher.Constraint("Horizontal", 1),
    Sketcher.Constraint("Vertical", 2),
    Sketcher.Constraint("Horizontal", 3),
    Sketcher.Constraint("DistanceX", 1, 2, 1, 1, Q("9.5 in")),
    Sketcher.Constraint("DistanceY", 0, 2, 0, 1, Q("3.5 in")),
    Sketcher.Constraint("DistanceY", -1, 1, 2, 2, Q("72 in")),
    Sketcher.Constraint("DistanceX", -1, 1, 0, 2, Q("52.75 in")),
])
pad7 = body.newObject("PartDesign::Pad", "Pad006")
pad7.Profile = sketch7
pad7.Length = Q("1.5 in")
pad7.Reversed = True

# Sketch on XZ plane
sketch8 = body.newObject("Sketcher::SketchObject", "Sketch007")
sketch8.AttachmentSupport = (doc.getObject("XZ_Plane"), [""])
sketch8.MapMode = "FlatFace"
sketch8.AttachmentOffset = App.Placement(V(0, 0, 25.5 * 25.4), App.Rotation())
sketch8.addGeometry([
    Part.LineSegment(V(1098.55, 1828.8, 0), V(1098.55, 1739.9, 0)),
    Part.LineSegment(V(1098.55, 1739.9, 0), V(1339.85, 1739.9, 0)),
    Part.LineSegment(V(1339.85, 1739.9, 0), V(1339.85, 1828.8, 0)),
    Part.LineSegment(V(1339.85, 1828.8, 0), V(1098.55, 1828.8, 0)),
], False)
sketch8.addConstraint([
    Sketcher.Constraint("Coincident", 0, 2, 1, 1),
    Sketcher.Constraint("Coincident", 1, 2, 2, 1),
    Sketcher.Constraint("Coincident", 2, 2, 3, 1),
    Sketcher.Constraint("Coincident", 3, 2, 0, 1),
    Sketcher.Constraint("Vertical", 0),
    Sketcher.Constraint("Horizontal", 1),
    Sketcher.Constraint("Vertical", 2),
    Sketcher.Constraint("Horizontal", 3),
    Sketcher.Constraint("DistanceX", 1, 1, 1, 2, Q("9.5 in")),
    Sketcher.Constraint("DistanceY", 0, 2, 0, 1, Q("3.5 in")),
    Sketcher.Constraint("DistanceY", -1, 1, 2, 2, Q("72 in")),
    Sketcher.Constraint("DistanceX", -1, 1, 0, 2, Q("43.25 in")),
])
pad8 = body.newObject("PartDesign::Pad", "Pad007")
pad8.Profile = sketch8
pad8.Length = Q("1.5 in")
body2 = doc.addObject("PartDesign::Body", "Body001")

# Sketch on XZ plane
sketch9 = body2.newObject("Sketcher::SketchObject", "Sketch008")
sketch9.AttachmentSupport = (doc.getObject("XZ_Plane001"), [""])
sketch9.MapMode = "FlatFace"
sketch9.AttachmentOffset = App.Placement(V(0, 0, 12 * 25.4), App.Rotation())
sketch9.addGeometry([
    Part.LineSegment(V(3169.85563, 282.866858, 0), V(1182.871796, 1696.263407, 0)),  # 0
    Part.LineSegment(V(1182.871796, 1696.263407, 0), V(1131.341714, 1623.821289, 0)),  # 1
    Part.LineSegment(V(1131.341714, 1623.821289, 0), V(3118.325548, 210.42474, 0)),  # 2
    Part.LineSegment(V(3118.325548, 210.42474, 0), V(3169.85563, 282.866858, 0)),  # 3
    Part.Circle(V(1964.318938, 1085.85, 0), V(0, 0, 1), 25.4),  # 4
    Part.Circle(V(1219.2, 1615.873706, 0), V(0, 0, 1), 25.4),  # 5
], False)
sketch9.addConstraint([
    Sketcher.Constraint("Coincident", 0, 2, 1, 1),
    Sketcher.Constraint("Coincident", 1, 2, 2, 1),
    Sketcher.Constraint("Coincident", 2, 2, 3, 1),
    Sketcher.Constraint("Coincident", 3, 2, 0, 1),
    Sketcher.Constraint("Equal", 4, 5),
    Sketcher.Constraint("Perpendicular", 0, 1),
    Sketcher.Constraint("Perpendicular", 1, 2),
    Sketcher.Constraint("Perpendicular", 2, 3),
    Sketcher.Constraint("Diameter", 4, Q("2 in")),
    Sketcher.Constraint("Distance", 0, Q("96 in")),
    Sketcher.Constraint("DistanceX", -1, 1, 5, 3, Q("48 in")),
    Sketcher.Constraint("Distance", 1, Q("3.5 in")),
    Sketcher.Constraint("DistanceY", -1, 1, 4, 3, Q("42.75 in")),
    Sketcher.Constraint("DistanceY", 5, 3, 0, 2, 80.389702),
    Sketcher.Constraint("DistanceY", -1, 1, 1, 2, 1623.821289),
    Sketcher.Constraint("DistanceY", -1, 1, 2, 2, 210.42474),
    Sketcher.Constraint("DistanceX", -1, 1, 3, 2, 3169.85563),
    Sketcher.Constraint("DistanceX", 0, 2, 4, 3, 781.447141),
])
pad9 = body2.newObject("PartDesign::Pad", "Pad008")
pad9.Profile = sketch9
pad9.Length = Q("1.5 in")
pad9.Midplane = True
body3 = doc.addObject("PartDesign::Body", "Body002")

# Sketch on XZ plane
sketch10 = body3.newObject("Sketcher::SketchObject", "Sketch009")
sketch10.AttachmentSupport = (doc.getObject("XZ_Plane002"), [""])
sketch10.MapMode = "FlatFace"
sketch10.AttachmentOffset = App.Placement(V(0, 0, 12 * 25.4), App.Rotation())
sketch10.addGeometry(Part.Circle(V(1219.2, 1085.85, 0), V(0, 0, 1), 25.4), False)
sketch10.addConstraint([
    Sketcher.Constraint("Diameter", 0, Q("2 in")),
    Sketcher.Constraint("DistanceX", -1, 1, 0, 3, Q("48 in")),
    Sketcher.Constraint("DistanceY", -1, 1, 0, 3, Q("42.75 in")),
])
pad10 = body3.newObject("PartDesign::Pad", "Pad009")
pad10.Profile = sketch10
pad10.Length = Q("1.5 in")
pad10.Midplane = True
body4 = doc.addObject("PartDesign::Body", "Body003")

# Sketch on XZ plane
sketch11 = body4.newObject("Sketcher::SketchObject", "Sketch010")
sketch11.AttachmentSupport = (doc.getObject("XZ_Plane003"), [""])
sketch11.MapMode = "FlatFace"
sketch11.AttachmentOffset = App.Placement(V(0, 0, 12 * 25.4), App.Rotation())
sketch11.addGeometry(Part.Circle(V(1219.2, 171.45, 0), V(0, 0, 1), 25.4), False)
sketch11.addConstraint([
    Sketcher.Constraint("Diameter", 0, Q("2 in")),
    Sketcher.Constraint("DistanceX", -1, 1, 0, 3, Q("48 in")),
    Sketcher.Constraint("DistanceY", -1, 1, 0, 3, Q("6.75 in")),
])
pad11 = body4.newObject("PartDesign::Pad", "Pad010")
pad11.Profile = sketch11
pad11.Length = Q("1.5 in")
pad11.Midplane = True

doc.recompute()
